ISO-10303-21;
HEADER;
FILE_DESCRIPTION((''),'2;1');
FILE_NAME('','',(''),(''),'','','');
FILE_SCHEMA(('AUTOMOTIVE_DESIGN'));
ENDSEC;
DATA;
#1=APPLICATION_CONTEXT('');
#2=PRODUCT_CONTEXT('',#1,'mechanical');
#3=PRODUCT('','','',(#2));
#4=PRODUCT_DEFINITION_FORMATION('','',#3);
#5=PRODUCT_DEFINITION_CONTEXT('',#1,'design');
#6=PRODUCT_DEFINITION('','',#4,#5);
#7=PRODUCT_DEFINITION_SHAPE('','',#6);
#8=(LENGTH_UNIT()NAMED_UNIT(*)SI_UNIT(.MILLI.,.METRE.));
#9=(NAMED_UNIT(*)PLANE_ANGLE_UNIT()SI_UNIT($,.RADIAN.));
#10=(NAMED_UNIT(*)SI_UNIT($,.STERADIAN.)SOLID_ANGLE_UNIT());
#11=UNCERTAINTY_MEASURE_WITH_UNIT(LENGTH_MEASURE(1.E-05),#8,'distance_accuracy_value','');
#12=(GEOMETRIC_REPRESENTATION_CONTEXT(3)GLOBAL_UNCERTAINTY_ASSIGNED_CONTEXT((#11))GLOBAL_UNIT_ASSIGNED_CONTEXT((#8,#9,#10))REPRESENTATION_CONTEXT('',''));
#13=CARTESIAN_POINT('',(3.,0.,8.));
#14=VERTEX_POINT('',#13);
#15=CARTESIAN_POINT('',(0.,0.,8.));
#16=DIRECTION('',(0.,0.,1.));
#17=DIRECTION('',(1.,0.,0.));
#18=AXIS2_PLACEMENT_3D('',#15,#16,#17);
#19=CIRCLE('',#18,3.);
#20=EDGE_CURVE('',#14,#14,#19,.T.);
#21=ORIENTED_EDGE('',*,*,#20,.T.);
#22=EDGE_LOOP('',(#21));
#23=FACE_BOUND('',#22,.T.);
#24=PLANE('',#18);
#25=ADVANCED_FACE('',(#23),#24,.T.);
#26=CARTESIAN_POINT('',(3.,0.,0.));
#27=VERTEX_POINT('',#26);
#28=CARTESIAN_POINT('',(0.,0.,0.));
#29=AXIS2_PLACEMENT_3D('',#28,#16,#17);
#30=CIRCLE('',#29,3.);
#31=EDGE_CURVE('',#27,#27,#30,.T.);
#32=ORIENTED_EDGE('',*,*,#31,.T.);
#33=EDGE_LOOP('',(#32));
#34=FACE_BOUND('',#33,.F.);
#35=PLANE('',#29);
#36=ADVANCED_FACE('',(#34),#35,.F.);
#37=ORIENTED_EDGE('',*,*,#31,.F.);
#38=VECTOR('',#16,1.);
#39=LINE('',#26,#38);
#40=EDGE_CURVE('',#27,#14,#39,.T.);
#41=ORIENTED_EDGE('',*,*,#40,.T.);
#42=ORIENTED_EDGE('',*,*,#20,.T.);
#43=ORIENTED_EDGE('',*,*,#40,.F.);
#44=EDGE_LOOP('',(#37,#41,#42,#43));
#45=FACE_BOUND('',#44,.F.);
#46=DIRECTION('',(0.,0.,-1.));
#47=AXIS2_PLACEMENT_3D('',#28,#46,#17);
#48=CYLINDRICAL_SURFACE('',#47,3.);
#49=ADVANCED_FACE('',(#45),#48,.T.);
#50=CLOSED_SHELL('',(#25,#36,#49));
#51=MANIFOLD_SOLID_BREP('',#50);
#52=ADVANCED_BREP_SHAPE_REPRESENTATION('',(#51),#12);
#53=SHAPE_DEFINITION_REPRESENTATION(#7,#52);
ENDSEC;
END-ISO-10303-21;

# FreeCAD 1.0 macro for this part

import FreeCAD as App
import Part
import Sketcher

V = App.Vector

doc = App.newDocument("Part")
body = doc.addObject("PartDesign::Body", "Body")

# Sketch on XY plane
sketch1 = doc.addObject("Sketcher::SketchObject", "Sketch")
body.addObject(sketch1)
sketch1.AttachmentSupport = (doc.XY_Plane, [""])
sketch1.MapMode = "FlatFace"
sketch1.addGeometry(Part.Circle(V(0, 0, 0), V(0, 0, 1), 3), False)
sketch1.addConstraint(Sketcher.Constraint("Coincident", 0, 3, -1, 1))
sketch1.addConstraint(Sketcher.Constraint("Diameter", 0, 6.0))
pad1 = doc.addObject("PartDesign::Pad", "Pad")
body.addObject(pad1)
pad1.Profile = sketch1
pad1.Length = 8

doc.recompute()
